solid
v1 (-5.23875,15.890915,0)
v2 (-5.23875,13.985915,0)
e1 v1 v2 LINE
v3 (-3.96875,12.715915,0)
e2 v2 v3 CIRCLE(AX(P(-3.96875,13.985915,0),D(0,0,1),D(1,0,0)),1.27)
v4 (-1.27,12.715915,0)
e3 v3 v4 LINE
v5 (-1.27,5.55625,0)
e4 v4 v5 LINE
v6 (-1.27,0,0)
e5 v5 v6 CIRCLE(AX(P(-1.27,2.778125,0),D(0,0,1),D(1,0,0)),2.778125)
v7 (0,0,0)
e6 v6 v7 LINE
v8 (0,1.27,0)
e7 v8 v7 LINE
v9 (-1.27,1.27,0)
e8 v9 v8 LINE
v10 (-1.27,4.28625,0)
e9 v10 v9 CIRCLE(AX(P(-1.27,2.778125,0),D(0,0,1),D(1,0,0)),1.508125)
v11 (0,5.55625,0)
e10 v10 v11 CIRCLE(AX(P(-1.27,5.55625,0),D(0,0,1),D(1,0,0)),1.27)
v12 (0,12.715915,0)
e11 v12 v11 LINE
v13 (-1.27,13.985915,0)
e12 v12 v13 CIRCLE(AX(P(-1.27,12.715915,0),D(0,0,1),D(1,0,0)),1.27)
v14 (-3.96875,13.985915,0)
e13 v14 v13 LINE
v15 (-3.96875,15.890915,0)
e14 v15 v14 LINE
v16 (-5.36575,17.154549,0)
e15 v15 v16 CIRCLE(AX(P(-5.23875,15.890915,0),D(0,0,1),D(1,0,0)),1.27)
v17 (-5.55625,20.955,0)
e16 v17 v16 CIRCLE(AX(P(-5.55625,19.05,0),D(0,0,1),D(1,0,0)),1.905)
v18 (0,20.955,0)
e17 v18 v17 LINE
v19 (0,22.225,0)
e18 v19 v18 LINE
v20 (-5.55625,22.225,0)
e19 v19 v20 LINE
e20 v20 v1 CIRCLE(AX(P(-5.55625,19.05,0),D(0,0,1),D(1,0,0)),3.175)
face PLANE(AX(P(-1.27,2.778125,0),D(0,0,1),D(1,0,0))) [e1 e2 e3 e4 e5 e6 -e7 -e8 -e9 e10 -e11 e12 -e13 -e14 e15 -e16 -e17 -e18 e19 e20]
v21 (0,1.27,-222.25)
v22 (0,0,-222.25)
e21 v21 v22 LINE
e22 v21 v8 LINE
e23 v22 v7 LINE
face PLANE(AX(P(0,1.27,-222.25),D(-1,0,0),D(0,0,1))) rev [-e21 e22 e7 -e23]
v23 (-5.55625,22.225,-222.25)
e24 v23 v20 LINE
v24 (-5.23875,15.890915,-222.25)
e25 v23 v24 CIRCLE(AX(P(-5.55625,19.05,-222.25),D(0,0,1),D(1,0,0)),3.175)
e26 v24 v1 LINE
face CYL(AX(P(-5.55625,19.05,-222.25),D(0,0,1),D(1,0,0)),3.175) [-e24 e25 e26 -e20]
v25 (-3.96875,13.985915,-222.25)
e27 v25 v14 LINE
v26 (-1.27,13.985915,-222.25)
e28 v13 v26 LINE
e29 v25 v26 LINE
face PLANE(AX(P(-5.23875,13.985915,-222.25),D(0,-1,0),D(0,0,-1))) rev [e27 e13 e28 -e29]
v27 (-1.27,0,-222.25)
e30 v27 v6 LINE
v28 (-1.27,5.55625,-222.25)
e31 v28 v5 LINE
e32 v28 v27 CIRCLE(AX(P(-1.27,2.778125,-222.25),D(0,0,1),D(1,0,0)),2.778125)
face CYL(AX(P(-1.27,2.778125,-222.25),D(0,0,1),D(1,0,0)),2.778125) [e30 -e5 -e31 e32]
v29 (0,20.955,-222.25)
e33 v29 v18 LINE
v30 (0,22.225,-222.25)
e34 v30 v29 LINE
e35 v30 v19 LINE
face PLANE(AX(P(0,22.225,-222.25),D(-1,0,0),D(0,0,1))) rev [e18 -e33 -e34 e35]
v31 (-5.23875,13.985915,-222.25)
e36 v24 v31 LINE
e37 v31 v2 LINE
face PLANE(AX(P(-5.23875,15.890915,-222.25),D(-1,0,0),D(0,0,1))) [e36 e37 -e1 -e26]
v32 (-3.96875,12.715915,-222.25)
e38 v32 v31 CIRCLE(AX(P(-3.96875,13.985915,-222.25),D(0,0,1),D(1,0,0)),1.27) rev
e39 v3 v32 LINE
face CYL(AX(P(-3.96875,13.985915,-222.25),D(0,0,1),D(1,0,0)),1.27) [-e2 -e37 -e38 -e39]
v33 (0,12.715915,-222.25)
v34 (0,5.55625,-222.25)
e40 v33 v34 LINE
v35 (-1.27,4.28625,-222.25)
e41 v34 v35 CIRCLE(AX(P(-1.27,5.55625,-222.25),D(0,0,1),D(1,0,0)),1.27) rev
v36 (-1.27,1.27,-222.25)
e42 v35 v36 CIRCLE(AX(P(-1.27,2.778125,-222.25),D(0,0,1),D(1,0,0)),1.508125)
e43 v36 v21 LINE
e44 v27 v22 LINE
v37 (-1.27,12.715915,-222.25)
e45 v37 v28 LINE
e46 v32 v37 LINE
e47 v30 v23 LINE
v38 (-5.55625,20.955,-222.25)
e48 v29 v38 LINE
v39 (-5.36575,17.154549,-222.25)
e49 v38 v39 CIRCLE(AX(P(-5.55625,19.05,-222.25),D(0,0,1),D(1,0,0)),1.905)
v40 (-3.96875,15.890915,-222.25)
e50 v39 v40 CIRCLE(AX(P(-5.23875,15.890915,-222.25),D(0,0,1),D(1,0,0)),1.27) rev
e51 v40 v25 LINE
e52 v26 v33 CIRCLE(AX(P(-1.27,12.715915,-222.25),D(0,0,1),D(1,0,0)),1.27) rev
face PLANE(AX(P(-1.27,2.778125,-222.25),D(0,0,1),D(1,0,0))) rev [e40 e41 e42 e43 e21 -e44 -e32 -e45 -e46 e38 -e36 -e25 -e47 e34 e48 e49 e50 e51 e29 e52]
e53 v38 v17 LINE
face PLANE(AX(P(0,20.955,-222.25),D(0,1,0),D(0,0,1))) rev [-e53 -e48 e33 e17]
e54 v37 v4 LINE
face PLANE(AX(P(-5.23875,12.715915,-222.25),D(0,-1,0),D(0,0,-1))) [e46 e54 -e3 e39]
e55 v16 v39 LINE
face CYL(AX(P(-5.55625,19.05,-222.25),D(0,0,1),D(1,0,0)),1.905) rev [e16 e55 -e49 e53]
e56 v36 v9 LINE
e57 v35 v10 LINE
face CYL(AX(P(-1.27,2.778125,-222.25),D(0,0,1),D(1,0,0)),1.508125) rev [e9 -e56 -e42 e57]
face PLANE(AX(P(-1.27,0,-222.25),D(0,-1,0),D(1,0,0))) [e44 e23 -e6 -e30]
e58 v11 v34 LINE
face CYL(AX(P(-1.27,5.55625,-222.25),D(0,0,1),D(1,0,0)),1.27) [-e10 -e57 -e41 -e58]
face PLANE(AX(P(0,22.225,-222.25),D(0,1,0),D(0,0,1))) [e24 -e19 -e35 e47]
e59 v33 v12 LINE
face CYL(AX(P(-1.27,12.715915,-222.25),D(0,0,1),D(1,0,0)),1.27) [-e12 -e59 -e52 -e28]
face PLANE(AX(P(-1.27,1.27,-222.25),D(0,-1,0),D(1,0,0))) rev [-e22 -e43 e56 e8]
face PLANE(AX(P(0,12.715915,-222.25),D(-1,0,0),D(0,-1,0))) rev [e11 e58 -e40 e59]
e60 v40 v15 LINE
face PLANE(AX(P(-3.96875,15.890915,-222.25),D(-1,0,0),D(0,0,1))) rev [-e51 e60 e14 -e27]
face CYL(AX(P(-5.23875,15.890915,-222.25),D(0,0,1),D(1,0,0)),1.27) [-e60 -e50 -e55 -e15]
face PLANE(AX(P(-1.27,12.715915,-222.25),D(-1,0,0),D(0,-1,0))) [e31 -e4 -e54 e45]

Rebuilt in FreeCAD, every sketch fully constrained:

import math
import FreeCAD as App
import Part
import Sketcher
from FreeCAD import Vector
Q = App.Units.Quantity


def edges_at(feature, points):
    """Names of the edges that pass closest to the given points."""
    edges = feature.Shape.Edges
    near = lambda p: min(range(len(edges)), key=lambda i: edges[i].distToShape(Part.Vertex(*p))[0])
    return sorted({f"Edge{near(p) + 1}" for p in points})

doc = App.newDocument("Part")
params = doc.addObject("Spreadsheet::Sheet", "Params")
for row, (alias, value) in enumerate([
    ("sketch1_radius", "0.125 in"),
    ("sketch1_radius2", "0.109375 in"),
    ("sketch1_radius3", "0.075 in"),
    ("sketch1_width", "0.21875 in"),
    ("sketch1_width2", "0.15625 in"),
    ("pad1_length", "8.75 in"),
    ("fillet_radius", "0.05 in"),
], start=1):
    params.set(f"A{row}", alias)
    params.set(f"B{row}", "=" + value)
    params.setAlias(f"B{row}", alias)

body = doc.addObject("PartDesign::Body", "Body")

# Sketch on XY plane
sketch1 = body.newObject("Sketcher::SketchObject", "Sketch")
sketch1.AttachmentSupport = (doc.getObject("XY_Plane"), [""])
sketch1.MapMode = "FlatFace"
sketch1.addGeometry([
    Part.LineSegment(Vector(0, 22.2, 0), Vector(-5.6, 22.2, 0)),  # 0
    Part.ArcOfCircle(Part.Circle(Vector(-5.6, 19.1, 0), Vector(0, 0, 1), 3.2), math.radians(90), math.radians(276)),  # 1
    Part.LineSegment(Vector(-5.2, 15.9, 0), Vector(-5.2, 12.7, 0)),  # 2
    Part.LineSegment(Vector(-5.2, 12.7, 0), Vector(-1.3, 12.7, 0)),  # 3
    Part.LineSegment(Vector(-1.3, 12.7, 0), Vector(-1.3, 5.6, 0)),  # 4
    Part.ArcOfCircle(Part.Circle(Vector(-1.3, 2.8, 0), Vector(0, 0, 1), 2.8), math.radians(90), math.radians(270)),  # 5
    Part.LineSegment(Vector(-1.3, 0, 0), Vector(0, 0, 0)),  # 6
    Part.LineSegment(Vector(0, 0, 0), Vector(0, 1.3, 0)),  # 7
    Part.LineSegment(Vector(0, 1.3, 0), Vector(-1.3, 1.3, 0)),  # 8
    Part.ArcOfCircle(Part.Circle(Vector(-1.3, 2.8, 0), Vector(0, 0, 1), 1.5), math.radians(33), math.radians(270)),  # 9
    Part.LineSegment(Vector(0, 3.6, 0), Vector(0, 14, 0)),  # 10
    Part.LineSegment(Vector(0, 14, 0), Vector(-4, 14, 0)),  # 11
    Part.LineSegment(Vector(-4, 14, 0), Vector(-4, 18, 0)),  # 12
    Part.ArcOfCircle(Part.Circle(Vector(-5.6, 19.1, 0), Vector(0, 0, 1), 1.9), math.radians(90), math.radians(326)),  # 13
    Part.LineSegment(Vector(-5.6, 21, 0), Vector(0, 21, 0)),  # 14
    Part.LineSegment(Vector(0, 21, 0), Vector(0, 22.2, 0)),  # 15
], False)
sketch1.addConstraint([
    Sketcher.Constraint("Tangent", 0, 2, 1, 1),
    Sketcher.Constraint("Coincident", 1, 2, 2, 1),
    Sketcher.Constraint("Coincident", 2, 2, 3, 1),
    Sketcher.Constraint("Coincident", 3, 2, 4, 1),
    Sketcher.Constraint("Coincident", 4, 2, 5, 1),
    Sketcher.Constraint("Tangent", 5, 2, 6, 1),
    Sketcher.Constraint("Coincident", 6, 2, 7, 1),
    Sketcher.Constraint("Coincident", 7, 2, 8, 1),
    Sketcher.Constraint("Tangent", 8, 2, 9, 2),
    Sketcher.Constraint("Coincident", 9, 1, 10, 1),
    Sketcher.Constraint("Coincident", 10, 2, 11, 1),
    Sketcher.Constraint("Coincident", 11, 2, 12, 1),
    Sketcher.Constraint("Coincident", 12, 2, 13, 2),
    Sketcher.Constraint("Tangent", 13, 1, 14, 1),
    Sketcher.Constraint("Coincident", 14, 2, 15, 1),
    Sketcher.Constraint("Coincident", 15, 2, 0, 1),
    Sketcher.Constraint("Horizontal", 0),
    Sketcher.Constraint("Vertical", 2),
    Sketcher.Constraint("Horizontal", 3),
    Sketcher.Constraint("Vertical", 4),
    Sketcher.Constraint("Horizontal", 6),
    Sketcher.Constraint("Vertical", 7),
    Sketcher.Constraint("Horizontal", 8),
    Sketcher.Constraint("Vertical", 10),
    Sketcher.Constraint("Horizontal", 11),
    Sketcher.Constraint("Vertical", 12),
    Sketcher.Constraint("Horizontal", 14),
    Sketcher.Constraint("Vertical", 15),
    Sketcher.Constraint("Coincident", 6, 2, -1, 1),
    Sketcher.Constraint("Coincident", 9, 3, 5, 3),
    Sketcher.Constraint("Coincident", 13, 3, 1, 3),
    Sketcher.Constraint("PointOnObject", 9, 1, -2),
    Sketcher.Constraint("PointOnObject", 14, 2, -2),
    Sketcher.Constraint("Vertical", 9, 3, 3, 2),
    Sketcher.Constraint("Equal", 3, 11),
    Sketcher.Constraint("Equal", 8, 7),
    Sketcher.Constraint("Equal", 7, 15),
    Sketcher.Constraint("Radius", 1, Q("0.125 in")),
    Sketcher.Constraint("Radius", 5, Q("0.109375 in")),
    Sketcher.Constraint("Radius", 13, Q("0.075 in")),
    Sketcher.Constraint("DistanceX", 0, 2, 0, 1, Q("0.21875 in")),
    Sketcher.Constraint("DistanceX", 3, 1, 3, 2, Q("0.15625 in")),
    Sketcher.Constraint("DistanceY", 2, 2, 2, 1, Q("0.125 in")),
    Sketcher.Constraint("DistanceY", -1, 1, 1, 3, Q("0.75 in")),
    Sketcher.Constraint("DistanceY", 3, 2, 10, 2, Q("0.05 in")),
])
sketch1.setExpression("Constraints[37]", "Params.sketch1_radius")
sketch1.setExpression("Constraints[38]", "Params.sketch1_radius2")
sketch1.setExpression("Constraints[39]", "Params.sketch1_radius3")
sketch1.setExpression("Constraints[40]", "Params.sketch1_width")
sketch1.setExpression("Constraints[41]", "Params.sketch1_width2")
pad1 = body.newObject("PartDesign::Pad", "Pad")
pad1.Profile = sketch1
pad1.setExpression("Length", "Params.pad1_length")
pad1.Reversed = True
doc.recompute()

fillet = body.newObject("PartDesign::Fillet", "Fillet")
fillet.Base = (pad1, edges_at(pad1, [
    (-5.239, 12.716, -111.125),
    (-3.969, 17.997, -111.125),
    (0, 13.986, -111.125),
    (0, 3.591, -111.125),
]))
fillet.setExpression("Radius", "Params.fillet_radius")

doc.recompute()
